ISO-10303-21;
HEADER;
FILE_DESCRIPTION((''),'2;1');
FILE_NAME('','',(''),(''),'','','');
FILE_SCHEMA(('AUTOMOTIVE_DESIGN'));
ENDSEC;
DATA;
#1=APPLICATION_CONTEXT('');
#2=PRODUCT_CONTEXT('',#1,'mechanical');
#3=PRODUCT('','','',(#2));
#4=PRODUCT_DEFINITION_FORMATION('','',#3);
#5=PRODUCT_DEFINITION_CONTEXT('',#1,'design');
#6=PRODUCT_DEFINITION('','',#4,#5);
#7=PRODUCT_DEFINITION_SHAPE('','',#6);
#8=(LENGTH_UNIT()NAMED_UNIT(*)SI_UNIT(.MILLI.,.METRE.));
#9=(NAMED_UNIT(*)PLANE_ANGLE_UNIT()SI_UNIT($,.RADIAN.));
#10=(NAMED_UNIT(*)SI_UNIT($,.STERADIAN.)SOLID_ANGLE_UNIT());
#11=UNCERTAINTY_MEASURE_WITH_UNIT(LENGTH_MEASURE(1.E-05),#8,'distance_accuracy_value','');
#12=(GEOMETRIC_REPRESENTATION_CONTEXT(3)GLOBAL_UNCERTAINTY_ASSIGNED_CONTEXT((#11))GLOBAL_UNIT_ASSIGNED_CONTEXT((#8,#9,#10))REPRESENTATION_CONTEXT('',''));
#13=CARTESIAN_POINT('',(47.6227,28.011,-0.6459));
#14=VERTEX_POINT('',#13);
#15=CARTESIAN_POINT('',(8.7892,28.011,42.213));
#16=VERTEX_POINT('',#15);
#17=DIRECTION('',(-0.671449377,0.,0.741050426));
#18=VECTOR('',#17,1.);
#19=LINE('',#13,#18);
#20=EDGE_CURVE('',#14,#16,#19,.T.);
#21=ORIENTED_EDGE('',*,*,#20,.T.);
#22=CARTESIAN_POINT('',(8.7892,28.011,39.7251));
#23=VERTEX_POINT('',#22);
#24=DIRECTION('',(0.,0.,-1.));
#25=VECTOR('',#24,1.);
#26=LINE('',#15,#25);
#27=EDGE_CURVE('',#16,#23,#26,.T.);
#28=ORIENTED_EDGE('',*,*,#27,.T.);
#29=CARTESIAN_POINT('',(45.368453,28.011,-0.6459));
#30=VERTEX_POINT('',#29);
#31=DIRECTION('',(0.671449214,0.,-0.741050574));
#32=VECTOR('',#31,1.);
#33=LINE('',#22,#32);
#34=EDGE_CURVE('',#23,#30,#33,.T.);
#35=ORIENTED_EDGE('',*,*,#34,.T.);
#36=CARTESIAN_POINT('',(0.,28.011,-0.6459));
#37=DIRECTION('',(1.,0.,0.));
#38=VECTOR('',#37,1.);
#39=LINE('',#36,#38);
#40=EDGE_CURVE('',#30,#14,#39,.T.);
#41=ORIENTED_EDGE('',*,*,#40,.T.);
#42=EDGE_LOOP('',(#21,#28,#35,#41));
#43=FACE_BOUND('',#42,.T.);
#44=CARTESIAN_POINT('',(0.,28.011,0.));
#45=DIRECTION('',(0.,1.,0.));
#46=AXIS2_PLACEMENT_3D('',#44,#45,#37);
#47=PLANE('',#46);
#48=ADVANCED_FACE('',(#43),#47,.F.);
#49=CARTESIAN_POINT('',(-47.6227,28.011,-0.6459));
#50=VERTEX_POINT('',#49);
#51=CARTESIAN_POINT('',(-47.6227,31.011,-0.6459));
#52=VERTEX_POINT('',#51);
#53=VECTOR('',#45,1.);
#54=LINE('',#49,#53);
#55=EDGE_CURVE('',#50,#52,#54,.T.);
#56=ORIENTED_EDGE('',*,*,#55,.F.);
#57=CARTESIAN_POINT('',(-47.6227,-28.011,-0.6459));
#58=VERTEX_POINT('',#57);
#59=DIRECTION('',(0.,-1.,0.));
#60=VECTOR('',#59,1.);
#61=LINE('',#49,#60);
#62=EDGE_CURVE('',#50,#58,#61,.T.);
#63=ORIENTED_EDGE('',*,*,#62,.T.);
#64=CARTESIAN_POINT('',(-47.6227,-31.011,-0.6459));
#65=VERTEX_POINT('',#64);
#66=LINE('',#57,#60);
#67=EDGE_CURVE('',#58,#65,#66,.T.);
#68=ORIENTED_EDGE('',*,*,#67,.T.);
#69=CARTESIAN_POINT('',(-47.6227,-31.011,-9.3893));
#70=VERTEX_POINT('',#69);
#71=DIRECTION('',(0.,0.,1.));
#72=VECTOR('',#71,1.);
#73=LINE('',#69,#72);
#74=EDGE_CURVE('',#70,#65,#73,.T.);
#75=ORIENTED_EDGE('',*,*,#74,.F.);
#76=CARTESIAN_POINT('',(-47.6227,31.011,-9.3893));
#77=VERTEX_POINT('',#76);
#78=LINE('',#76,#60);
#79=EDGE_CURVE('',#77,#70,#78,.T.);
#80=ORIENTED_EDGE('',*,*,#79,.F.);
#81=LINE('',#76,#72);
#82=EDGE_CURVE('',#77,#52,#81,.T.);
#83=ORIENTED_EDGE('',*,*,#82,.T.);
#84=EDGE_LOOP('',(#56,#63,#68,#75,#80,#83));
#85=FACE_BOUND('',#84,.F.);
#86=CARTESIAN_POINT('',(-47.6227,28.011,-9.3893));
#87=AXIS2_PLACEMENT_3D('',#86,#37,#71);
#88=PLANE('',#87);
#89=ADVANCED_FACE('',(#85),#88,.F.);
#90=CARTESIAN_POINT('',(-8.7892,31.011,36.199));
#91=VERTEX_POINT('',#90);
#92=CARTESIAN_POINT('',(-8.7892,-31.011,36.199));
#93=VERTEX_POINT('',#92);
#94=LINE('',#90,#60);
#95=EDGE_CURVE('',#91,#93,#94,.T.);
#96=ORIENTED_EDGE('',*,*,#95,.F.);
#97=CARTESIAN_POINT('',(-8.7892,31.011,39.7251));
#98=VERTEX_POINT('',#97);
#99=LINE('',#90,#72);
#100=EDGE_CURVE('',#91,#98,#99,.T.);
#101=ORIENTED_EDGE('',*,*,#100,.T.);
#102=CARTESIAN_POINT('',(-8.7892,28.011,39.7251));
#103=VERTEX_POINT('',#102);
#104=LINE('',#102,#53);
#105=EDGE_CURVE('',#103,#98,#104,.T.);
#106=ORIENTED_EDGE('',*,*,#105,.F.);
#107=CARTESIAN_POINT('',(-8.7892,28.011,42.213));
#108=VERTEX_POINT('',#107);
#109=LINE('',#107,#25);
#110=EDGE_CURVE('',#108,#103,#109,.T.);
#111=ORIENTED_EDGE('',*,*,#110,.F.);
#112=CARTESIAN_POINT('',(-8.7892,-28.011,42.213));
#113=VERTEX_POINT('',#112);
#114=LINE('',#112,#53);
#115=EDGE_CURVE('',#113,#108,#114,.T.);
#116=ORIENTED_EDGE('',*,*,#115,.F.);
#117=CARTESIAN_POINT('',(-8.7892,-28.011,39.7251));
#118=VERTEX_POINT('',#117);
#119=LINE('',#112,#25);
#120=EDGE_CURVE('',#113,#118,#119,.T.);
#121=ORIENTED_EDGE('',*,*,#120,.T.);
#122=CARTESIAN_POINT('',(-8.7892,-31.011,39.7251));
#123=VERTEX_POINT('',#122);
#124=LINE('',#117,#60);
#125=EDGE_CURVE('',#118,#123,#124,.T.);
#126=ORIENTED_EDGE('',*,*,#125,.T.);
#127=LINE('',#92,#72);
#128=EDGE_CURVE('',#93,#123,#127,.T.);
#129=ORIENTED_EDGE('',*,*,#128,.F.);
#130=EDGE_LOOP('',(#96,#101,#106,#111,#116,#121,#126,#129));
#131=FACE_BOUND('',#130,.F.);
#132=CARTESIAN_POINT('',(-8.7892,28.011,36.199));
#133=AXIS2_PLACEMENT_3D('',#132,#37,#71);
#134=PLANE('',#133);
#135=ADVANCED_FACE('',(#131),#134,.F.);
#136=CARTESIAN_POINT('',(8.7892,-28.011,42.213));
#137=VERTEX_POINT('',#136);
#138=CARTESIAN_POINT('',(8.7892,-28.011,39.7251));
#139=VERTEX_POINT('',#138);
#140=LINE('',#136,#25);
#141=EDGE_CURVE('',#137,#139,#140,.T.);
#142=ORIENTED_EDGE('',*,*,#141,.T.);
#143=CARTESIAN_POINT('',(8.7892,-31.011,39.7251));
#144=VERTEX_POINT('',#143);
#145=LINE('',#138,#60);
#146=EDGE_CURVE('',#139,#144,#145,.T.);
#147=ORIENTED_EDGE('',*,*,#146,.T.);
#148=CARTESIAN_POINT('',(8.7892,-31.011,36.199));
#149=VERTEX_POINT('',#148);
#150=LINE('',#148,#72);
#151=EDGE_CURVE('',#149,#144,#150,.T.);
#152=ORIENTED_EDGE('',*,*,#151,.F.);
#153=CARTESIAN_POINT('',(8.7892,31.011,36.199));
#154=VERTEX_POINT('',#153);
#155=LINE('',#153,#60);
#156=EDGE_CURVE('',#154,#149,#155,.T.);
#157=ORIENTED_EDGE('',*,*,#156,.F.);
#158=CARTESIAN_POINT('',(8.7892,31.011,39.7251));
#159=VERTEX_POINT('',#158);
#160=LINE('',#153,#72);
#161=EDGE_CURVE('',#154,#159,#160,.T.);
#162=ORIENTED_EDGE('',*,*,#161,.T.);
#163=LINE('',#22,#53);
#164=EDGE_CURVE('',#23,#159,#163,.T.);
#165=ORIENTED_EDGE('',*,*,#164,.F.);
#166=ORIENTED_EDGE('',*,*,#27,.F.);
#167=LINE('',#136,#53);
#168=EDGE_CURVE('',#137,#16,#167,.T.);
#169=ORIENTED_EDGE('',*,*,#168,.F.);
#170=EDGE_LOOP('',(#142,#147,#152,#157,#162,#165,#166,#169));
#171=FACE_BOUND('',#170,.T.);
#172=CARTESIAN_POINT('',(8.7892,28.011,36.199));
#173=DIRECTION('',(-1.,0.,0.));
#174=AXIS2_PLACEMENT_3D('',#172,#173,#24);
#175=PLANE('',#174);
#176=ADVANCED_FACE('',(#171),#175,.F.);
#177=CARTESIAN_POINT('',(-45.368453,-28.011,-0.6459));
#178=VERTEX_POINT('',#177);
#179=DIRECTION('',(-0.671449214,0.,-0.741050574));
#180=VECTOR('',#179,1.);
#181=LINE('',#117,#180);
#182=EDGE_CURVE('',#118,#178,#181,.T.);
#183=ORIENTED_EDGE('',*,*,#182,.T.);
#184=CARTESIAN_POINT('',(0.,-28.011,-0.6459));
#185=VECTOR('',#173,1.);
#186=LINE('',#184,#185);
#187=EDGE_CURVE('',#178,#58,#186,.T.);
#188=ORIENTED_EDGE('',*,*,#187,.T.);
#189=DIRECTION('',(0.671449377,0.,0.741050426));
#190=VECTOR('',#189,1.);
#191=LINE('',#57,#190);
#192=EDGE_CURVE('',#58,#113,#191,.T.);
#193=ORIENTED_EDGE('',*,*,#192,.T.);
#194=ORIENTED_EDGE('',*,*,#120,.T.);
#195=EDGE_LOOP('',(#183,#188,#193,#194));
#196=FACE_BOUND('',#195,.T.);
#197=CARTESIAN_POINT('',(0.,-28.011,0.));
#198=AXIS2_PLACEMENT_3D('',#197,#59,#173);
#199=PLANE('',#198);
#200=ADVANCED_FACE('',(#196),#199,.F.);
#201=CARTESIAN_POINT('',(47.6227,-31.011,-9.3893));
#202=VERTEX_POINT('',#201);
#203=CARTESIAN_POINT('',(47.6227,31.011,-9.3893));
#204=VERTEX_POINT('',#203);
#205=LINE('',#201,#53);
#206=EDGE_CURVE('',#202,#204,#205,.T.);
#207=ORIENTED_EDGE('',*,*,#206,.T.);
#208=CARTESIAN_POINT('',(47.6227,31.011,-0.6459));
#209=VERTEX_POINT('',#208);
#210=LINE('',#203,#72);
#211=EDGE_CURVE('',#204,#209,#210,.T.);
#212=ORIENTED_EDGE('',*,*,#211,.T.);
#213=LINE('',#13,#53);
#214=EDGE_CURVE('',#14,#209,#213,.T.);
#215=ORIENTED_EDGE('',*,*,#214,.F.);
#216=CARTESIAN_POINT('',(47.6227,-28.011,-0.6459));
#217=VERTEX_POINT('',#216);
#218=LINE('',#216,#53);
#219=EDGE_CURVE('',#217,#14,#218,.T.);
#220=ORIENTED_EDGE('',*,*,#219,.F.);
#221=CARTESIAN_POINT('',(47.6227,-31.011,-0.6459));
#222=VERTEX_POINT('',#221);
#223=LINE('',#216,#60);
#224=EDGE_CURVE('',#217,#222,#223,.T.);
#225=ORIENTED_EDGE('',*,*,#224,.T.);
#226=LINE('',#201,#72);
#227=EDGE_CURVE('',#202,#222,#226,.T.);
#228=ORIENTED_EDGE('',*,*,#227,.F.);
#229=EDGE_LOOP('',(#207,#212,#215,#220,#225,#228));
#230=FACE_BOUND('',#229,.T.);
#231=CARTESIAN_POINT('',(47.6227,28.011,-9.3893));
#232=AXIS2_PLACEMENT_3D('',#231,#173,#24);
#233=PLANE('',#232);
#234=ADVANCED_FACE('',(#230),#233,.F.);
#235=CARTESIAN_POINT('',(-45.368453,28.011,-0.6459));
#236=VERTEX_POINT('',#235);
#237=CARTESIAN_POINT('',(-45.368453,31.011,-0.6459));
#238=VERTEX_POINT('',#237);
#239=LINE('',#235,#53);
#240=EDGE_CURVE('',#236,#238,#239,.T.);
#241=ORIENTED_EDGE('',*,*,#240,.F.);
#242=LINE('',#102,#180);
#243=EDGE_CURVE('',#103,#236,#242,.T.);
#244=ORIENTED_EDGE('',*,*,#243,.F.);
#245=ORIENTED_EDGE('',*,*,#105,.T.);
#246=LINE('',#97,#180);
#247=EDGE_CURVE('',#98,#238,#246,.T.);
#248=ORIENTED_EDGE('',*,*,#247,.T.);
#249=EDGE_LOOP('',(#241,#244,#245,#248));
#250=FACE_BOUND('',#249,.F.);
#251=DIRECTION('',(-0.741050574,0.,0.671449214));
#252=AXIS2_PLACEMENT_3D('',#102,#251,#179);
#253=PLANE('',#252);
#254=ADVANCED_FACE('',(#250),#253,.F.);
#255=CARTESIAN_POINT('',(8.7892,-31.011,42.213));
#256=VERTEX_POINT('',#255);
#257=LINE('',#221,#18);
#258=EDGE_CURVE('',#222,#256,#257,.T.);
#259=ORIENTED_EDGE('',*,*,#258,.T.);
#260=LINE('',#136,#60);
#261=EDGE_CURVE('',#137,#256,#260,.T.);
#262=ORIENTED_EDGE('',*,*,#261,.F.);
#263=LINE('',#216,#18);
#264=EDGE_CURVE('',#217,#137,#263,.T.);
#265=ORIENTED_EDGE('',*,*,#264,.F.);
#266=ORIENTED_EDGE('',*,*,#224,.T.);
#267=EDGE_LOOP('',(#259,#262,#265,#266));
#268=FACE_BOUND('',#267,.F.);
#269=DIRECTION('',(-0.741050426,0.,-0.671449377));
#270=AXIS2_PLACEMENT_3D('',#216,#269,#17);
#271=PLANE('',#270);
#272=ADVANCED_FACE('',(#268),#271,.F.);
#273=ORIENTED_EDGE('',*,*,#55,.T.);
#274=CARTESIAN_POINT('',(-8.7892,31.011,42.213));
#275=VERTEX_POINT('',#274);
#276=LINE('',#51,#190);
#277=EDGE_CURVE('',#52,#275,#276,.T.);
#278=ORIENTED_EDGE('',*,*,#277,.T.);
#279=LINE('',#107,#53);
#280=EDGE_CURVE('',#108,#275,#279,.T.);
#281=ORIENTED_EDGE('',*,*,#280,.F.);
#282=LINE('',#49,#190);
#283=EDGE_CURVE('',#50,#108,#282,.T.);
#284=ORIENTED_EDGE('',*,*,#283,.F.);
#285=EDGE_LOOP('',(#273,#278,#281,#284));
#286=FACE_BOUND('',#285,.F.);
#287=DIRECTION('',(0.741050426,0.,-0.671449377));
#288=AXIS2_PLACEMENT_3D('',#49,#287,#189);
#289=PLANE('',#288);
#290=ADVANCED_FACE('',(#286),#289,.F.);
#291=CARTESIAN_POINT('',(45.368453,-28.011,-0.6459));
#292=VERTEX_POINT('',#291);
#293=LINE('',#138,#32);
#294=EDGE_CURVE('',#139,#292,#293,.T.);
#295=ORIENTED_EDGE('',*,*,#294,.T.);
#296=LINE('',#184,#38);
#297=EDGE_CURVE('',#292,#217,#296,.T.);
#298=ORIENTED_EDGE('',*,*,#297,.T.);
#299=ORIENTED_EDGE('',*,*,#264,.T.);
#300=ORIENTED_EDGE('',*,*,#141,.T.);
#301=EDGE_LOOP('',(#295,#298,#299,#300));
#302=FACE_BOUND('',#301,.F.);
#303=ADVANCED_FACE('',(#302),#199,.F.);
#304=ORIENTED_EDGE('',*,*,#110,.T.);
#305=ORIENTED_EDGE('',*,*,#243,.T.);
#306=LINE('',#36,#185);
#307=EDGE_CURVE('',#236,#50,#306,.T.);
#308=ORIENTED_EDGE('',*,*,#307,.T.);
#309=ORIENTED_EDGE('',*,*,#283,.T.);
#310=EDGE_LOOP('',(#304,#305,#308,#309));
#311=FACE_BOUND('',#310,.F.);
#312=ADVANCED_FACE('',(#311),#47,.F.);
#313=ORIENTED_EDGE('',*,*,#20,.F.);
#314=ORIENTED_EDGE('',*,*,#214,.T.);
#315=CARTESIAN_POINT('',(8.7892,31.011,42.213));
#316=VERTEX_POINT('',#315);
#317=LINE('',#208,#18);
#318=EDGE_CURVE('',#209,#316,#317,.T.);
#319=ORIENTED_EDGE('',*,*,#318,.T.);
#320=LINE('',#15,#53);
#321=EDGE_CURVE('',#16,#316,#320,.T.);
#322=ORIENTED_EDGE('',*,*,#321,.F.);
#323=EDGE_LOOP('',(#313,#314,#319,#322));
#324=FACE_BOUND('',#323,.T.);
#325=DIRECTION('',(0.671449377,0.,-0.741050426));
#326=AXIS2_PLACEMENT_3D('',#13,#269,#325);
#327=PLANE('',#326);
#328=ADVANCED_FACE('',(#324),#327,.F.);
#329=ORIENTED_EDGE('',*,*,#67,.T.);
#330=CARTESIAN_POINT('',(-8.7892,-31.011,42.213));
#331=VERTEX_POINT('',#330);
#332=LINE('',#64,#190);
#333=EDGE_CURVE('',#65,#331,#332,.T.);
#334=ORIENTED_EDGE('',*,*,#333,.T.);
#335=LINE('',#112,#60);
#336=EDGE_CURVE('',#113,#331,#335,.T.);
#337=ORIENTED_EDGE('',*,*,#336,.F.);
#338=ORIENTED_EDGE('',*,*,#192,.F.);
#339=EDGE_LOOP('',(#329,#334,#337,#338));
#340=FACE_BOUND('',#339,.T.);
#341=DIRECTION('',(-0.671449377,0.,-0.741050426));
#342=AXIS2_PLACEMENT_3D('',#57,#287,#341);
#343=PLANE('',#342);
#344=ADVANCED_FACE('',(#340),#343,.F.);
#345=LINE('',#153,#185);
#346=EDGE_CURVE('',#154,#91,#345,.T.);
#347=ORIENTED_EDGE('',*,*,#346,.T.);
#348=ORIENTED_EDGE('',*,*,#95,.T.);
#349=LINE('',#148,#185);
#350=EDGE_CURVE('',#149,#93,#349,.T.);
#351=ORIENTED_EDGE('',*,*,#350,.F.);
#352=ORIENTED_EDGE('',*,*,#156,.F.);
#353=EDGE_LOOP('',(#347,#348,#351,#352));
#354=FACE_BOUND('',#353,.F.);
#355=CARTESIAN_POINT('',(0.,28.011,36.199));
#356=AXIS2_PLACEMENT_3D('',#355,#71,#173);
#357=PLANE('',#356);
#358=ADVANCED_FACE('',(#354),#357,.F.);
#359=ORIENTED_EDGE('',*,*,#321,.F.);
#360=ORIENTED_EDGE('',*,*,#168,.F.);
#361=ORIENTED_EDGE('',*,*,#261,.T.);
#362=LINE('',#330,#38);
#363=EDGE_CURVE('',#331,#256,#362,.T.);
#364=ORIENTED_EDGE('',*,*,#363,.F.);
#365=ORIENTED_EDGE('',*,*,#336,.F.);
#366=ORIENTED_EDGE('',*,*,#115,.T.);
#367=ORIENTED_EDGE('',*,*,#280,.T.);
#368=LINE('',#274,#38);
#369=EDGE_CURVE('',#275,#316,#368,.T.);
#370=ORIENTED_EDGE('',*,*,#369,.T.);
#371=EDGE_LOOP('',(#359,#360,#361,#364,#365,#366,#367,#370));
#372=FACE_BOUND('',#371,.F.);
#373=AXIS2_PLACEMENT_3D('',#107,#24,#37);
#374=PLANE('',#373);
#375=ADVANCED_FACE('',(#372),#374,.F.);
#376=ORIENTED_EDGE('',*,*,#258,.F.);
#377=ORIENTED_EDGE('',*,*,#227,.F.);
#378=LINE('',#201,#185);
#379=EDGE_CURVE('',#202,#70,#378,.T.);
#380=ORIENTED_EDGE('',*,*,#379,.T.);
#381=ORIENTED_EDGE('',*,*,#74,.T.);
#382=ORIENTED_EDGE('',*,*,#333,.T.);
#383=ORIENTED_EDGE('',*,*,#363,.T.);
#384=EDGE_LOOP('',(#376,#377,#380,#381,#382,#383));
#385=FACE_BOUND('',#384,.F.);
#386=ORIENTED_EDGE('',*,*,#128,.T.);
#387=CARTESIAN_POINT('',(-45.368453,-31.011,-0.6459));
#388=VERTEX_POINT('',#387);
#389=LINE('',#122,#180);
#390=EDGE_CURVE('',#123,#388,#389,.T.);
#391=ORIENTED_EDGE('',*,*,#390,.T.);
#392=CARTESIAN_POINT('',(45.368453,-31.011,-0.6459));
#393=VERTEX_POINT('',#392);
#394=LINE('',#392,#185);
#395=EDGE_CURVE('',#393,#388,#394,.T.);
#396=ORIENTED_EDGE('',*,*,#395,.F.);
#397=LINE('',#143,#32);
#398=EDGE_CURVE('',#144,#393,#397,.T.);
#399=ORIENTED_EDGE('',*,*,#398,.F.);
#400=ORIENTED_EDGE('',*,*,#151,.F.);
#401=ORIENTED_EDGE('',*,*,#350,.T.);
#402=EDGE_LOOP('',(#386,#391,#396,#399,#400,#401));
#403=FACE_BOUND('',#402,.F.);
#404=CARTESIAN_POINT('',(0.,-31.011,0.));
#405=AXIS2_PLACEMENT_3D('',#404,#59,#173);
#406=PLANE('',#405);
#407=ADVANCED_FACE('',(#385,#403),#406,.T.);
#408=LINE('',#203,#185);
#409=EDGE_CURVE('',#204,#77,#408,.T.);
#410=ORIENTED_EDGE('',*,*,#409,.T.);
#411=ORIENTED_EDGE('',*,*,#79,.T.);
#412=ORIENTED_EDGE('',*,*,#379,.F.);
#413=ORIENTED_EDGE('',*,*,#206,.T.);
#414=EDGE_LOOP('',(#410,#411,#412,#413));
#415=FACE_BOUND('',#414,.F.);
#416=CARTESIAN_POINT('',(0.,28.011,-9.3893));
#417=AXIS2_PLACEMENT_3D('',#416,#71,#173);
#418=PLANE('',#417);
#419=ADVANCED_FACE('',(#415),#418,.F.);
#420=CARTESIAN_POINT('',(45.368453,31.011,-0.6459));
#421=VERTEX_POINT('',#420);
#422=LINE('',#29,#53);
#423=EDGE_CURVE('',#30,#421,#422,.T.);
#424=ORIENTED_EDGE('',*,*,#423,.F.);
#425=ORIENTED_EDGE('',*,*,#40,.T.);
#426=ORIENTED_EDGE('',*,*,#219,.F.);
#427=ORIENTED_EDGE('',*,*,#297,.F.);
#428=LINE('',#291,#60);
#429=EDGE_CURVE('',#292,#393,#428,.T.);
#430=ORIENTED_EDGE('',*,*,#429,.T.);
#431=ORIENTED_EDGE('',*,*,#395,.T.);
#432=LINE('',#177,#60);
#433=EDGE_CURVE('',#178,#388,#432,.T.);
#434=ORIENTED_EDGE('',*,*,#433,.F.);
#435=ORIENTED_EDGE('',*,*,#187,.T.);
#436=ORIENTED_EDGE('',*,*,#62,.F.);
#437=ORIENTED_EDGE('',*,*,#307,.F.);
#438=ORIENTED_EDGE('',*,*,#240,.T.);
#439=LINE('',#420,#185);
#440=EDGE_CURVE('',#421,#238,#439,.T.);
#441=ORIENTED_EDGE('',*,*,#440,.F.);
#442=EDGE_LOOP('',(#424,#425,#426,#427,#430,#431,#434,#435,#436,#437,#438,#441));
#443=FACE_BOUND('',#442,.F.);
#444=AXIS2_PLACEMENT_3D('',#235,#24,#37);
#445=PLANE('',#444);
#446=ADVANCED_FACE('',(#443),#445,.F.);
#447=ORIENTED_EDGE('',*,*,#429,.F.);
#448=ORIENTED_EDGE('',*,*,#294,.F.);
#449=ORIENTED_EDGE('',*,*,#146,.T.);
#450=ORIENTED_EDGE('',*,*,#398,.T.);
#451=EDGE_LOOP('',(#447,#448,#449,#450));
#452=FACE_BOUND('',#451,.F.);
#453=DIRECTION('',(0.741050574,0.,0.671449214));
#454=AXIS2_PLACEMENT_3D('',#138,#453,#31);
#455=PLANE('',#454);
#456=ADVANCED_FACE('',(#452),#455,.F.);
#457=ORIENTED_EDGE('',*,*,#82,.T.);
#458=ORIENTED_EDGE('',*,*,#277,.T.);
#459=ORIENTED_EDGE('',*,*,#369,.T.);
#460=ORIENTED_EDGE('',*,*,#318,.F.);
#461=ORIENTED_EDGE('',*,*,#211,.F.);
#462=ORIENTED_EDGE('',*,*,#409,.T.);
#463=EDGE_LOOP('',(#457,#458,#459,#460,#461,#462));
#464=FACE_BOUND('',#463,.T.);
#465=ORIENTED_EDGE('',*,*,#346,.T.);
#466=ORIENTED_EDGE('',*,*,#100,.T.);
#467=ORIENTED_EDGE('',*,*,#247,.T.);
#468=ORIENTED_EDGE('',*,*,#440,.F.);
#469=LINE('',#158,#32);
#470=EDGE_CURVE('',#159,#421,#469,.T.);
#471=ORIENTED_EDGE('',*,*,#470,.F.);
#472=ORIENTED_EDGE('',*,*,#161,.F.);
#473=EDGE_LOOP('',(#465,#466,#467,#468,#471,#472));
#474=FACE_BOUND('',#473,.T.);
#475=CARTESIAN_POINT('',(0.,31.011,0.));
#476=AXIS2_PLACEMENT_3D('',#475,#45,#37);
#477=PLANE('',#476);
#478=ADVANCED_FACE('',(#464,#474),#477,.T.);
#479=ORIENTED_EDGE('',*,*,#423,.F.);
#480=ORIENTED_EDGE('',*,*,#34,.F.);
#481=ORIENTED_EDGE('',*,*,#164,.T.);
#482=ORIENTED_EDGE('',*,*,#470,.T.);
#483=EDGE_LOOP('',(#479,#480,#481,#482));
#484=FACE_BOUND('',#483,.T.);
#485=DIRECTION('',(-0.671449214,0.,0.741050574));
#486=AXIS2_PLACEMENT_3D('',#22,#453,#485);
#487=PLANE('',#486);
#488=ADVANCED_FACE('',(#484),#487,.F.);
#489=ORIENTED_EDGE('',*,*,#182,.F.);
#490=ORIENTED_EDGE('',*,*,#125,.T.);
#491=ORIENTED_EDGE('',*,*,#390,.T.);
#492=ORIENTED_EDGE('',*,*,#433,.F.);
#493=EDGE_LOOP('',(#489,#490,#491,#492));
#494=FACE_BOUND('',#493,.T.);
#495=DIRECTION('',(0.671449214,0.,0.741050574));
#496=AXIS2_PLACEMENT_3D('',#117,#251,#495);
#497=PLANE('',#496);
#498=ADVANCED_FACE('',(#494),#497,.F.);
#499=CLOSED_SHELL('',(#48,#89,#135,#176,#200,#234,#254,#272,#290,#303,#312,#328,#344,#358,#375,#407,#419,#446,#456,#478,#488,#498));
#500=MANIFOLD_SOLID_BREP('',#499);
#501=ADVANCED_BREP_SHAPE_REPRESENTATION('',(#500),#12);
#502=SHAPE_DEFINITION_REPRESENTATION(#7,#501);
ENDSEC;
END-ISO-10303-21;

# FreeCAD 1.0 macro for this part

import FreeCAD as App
import Part
import Sketcher

V = App.Vector
Q = App.Units.Quantity


def add_polygon(sketch, points):
    """Adds a closed chain of lines whose ends are joined by coincident constraints."""
    first, n = sketch.GeometryCount, len(points)
    for a, b in zip(points, points[1:] + points[:1]):
        sketch.addGeometry(Part.LineSegment(App.Vector(*a, 0), App.Vector(*b, 0)), False)
    for i in range(n):
        sketch.addConstraint(Sketcher.Constraint("Coincident", first + i, 2, first + (i + 1) % n, 1))

doc = App.newDocument("Part")
body = doc.addObject("PartDesign::Body", "Body")

# Sketch on XZ plane
sketch1 = body.newObject("Sketcher::SketchObject", "Sketch")
sketch1.AttachmentSupport = (doc.getObject("XZ_Plane"), [""])
sketch1.MapMode = "FlatFace"
sketch1.AttachmentOffset = App.Placement(V(0, 0, -28.011), App.Rotation())
add_polygon(sketch1, [(-8.8, 39.7), (-45.4, -0.6), (0, -0.6), (0, -9.4), (-47.6, -9.4), (-47.6, -0.6), (-8.8, 42.2), (0, 42.2), (0, 36.2), (-8.8, 36.2)])  # lines 0-9
sketch1.addConstraint([
    Sketcher.Constraint("Horizontal", 1),
    Sketcher.Constraint("Vertical", 2),
    Sketcher.Constraint("Horizontal", 3),
    Sketcher.Constraint("Vertical", 4),
    Sketcher.Constraint("Horizontal", 6),
    Sketcher.Constraint("Vertical", 7),
    Sketcher.Constraint("Horizontal", 8),
    Sketcher.Constraint("Vertical", 9),
    Sketcher.Constraint("PointOnObject", 1, 2, -2),
    Sketcher.Constraint("PointOnObject", 6, 2, -2),
    Sketcher.Constraint("Parallel", 0, 5),
    Sketcher.Constraint("Horizontal", 1, 2, 4, 2),
    Sketcher.Constraint("Vertical", 5, 2, 8, 2),
    Sketcher.Constraint("Angle", 0, Q("-132.179 deg")),
    Sketcher.Constraint("DistanceY", 7, 2, 7, 1, 6.014),
    Sketcher.Constraint("DistanceY", 9, 1, 9, 2, 3.526),
    Sketcher.Constraint("Distance", 0, 54.478),
    Sketcher.Constraint("DistanceX", 1, 1, 1, 2, 45.3685),
    Sketcher.Constraint("DistanceY", 2, 2, 2, 1, 8.7434),
    Sketcher.Constraint("DistanceY", 0, 2, -1, 1, 0.646),
])
pad1 = body.newObject("PartDesign::Pad", "Pad")
pad1.Profile = sketch1
pad1.Length = 3
pad1.Reversed = True

# Sketch on XZ plane
sketch2 = body.newObject("Sketcher::SketchObject", "Sketch001")
sketch2.AttachmentSupport = (doc.getObject("XZ_Plane"), [""])
sketch2.MapMode = "FlatFace"
sketch2.AttachmentOffset = App.Placement(V(0, 0, -28.011), App.Rotation())
add_polygon(sketch2, [(-48, -1), (0, -1), (0, -9), (-48, -9)])  # lines 0-3
add_polygon(sketch2, [(-9, 36), (-9, 42), (0, 42), (0, 36)])  # lines 4-7
sketch2.addConstraint([
    Sketcher.Constraint("Horizontal", 0),
    Sketcher.Constraint("Vertical", 1),
    Sketcher.Constraint("Horizontal", 2),
    Sketcher.Constraint("Vertical", 3),
    Sketcher.Constraint("Vertical", 4),
    Sketcher.Constraint("Horizontal", 5),
    Sketcher.Constraint("Vertical", 6),
    Sketcher.Constraint("Horizontal", 7),
    Sketcher.Constraint("PointOnObject", 0, 2, -2),
    Sketcher.Constraint("PointOnObject", 5, 2, -2),
    Sketcher.Constraint("DistanceY", 4, 1, 4, 2, 6.014),
    Sketcher.Constraint("DistanceX", 0, 1, 0, 2, 47.6227),
    Sketcher.Constraint("DistanceX", 5, 1, 5, 2, 8.7892),
    Sketcher.Constraint("DistanceY", 1, 2, 1, 1, 8.7434),
    Sketcher.Constraint("DistanceY", 0, 2, -1, 1, 0.646),
    Sketcher.Constraint("DistanceY", -1, 1, 4, 2, 42.213),
])
pad2 = body.newObject("PartDesign::Pad", "Pad001")
pad2.Profile = sketch2
pad2.Length = 28.011
doc.recompute()

mirrored = body.newObject("PartDesign::Mirrored", "Mirrored")
mirrored.TransformMode = "Transform body"
mirrored.MirrorPlane = (doc.getObject("YZ_Plane"), [""])
body.Tip = mirrored
doc.recompute()

mirrored2 = body.newObject("PartDesign::Mirrored", "Mirrored001")
mirrored2.TransformMode = "Transform body"
mirrored2.MirrorPlane = (doc.getObject("XZ_Plane"), [""])
body.Tip = mirrored2

doc.recompute()
